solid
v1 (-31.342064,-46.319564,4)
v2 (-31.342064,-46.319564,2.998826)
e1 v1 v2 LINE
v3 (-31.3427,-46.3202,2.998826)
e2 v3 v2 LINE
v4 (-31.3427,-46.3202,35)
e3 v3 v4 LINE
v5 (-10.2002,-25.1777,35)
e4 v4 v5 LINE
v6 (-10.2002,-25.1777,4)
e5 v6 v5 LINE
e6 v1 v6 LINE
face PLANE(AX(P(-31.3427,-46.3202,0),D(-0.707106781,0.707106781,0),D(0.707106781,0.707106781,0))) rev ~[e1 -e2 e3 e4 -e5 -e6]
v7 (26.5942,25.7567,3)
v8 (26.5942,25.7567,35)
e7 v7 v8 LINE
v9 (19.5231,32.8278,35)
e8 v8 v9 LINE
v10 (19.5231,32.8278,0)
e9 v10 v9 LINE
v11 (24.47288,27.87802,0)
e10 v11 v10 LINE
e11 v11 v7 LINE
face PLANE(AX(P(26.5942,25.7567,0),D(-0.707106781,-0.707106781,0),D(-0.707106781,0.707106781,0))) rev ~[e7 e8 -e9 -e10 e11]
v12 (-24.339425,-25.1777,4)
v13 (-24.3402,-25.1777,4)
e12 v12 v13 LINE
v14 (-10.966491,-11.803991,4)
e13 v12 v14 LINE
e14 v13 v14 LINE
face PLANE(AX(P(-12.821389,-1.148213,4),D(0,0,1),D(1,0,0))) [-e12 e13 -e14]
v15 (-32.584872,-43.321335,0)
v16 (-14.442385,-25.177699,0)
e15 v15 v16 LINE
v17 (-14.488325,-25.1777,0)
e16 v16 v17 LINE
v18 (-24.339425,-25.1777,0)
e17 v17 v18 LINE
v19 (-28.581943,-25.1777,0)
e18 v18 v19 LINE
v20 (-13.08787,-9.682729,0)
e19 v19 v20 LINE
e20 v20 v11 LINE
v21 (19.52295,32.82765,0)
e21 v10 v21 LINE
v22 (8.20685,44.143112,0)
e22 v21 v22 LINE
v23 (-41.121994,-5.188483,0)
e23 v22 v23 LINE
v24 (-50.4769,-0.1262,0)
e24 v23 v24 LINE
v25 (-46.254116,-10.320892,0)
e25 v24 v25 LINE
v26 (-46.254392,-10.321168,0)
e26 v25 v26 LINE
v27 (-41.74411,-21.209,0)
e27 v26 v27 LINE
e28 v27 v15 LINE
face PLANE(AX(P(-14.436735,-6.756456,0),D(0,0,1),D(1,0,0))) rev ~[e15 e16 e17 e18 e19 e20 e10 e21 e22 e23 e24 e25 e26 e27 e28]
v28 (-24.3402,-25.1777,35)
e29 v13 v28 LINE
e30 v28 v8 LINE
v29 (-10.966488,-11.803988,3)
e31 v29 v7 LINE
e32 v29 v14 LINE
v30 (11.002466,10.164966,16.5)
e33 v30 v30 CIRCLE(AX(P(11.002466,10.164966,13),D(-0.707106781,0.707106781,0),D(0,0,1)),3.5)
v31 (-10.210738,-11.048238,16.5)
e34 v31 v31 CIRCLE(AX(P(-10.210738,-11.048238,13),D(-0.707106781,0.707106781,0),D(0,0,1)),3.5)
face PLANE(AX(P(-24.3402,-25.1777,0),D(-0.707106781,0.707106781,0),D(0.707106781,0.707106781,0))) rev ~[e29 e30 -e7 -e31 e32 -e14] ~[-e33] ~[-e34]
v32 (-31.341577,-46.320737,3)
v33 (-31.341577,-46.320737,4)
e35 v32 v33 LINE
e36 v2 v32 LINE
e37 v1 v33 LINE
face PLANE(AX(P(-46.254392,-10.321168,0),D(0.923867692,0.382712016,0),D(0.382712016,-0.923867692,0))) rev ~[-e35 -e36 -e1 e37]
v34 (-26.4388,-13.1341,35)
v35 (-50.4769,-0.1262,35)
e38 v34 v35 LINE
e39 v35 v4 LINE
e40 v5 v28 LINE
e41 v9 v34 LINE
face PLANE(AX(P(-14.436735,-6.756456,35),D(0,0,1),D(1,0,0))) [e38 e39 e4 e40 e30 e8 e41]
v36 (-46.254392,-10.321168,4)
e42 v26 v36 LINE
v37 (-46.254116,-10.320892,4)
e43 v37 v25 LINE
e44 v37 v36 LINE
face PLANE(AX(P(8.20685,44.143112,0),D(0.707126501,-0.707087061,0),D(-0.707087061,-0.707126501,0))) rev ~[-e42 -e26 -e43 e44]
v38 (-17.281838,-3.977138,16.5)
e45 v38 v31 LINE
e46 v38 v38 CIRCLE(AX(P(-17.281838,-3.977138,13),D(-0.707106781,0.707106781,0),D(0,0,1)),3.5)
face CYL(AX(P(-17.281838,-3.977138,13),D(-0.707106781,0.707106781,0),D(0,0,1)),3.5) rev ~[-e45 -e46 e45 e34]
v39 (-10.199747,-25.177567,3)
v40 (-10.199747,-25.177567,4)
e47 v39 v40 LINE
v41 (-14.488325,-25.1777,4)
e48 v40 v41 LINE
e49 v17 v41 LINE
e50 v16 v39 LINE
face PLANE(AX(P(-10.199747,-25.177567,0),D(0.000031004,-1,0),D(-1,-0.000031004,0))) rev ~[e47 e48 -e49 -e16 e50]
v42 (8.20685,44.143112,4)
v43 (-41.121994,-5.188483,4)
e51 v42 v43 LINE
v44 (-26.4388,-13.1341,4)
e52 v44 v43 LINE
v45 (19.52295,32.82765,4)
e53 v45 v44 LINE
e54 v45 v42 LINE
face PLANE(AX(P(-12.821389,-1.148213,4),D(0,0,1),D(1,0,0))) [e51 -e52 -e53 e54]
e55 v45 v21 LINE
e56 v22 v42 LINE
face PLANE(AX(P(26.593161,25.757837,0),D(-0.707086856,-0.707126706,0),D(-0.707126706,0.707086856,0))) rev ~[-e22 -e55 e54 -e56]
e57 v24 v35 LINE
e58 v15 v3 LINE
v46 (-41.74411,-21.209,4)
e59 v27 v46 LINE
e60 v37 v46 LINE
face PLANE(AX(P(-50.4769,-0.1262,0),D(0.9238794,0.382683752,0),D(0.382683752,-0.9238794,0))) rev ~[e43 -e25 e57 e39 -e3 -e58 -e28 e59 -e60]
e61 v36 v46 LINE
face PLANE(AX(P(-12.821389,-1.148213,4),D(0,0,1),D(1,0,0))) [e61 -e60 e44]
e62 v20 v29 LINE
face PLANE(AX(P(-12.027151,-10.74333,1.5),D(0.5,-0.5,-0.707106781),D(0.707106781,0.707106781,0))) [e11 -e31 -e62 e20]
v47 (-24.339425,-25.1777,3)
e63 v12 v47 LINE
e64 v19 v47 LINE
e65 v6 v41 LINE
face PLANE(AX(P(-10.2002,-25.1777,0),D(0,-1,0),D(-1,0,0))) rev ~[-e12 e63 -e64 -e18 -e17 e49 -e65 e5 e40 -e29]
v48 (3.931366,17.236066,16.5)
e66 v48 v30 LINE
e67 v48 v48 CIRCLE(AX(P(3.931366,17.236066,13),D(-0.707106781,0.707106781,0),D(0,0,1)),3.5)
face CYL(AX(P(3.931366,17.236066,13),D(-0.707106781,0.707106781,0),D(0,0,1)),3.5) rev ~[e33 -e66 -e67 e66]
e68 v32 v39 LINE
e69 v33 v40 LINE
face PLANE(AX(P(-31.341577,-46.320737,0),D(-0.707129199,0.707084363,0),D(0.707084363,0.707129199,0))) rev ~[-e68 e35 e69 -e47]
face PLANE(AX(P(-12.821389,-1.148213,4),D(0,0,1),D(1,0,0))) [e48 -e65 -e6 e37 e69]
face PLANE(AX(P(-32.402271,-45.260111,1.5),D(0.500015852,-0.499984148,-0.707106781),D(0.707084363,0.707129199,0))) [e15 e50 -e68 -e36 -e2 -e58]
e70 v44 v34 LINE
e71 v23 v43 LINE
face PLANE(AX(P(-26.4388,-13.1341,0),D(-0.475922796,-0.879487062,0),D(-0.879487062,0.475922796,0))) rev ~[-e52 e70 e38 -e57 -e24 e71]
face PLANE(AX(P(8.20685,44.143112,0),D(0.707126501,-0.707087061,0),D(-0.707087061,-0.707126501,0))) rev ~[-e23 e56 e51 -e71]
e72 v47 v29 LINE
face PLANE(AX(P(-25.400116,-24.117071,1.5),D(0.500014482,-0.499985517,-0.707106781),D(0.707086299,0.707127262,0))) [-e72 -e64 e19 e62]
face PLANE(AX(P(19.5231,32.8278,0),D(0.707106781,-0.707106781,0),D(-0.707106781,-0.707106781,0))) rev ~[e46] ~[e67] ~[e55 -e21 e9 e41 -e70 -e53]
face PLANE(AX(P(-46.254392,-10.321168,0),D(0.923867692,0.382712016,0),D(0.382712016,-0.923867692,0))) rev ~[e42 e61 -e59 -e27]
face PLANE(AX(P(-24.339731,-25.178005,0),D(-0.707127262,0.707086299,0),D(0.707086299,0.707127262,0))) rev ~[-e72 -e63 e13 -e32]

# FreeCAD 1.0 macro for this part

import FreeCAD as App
import Part
import Sketcher

V = App.Vector
Q = App.Units.Quantity


def edges_at(feature, points):
    """Names of the edges that pass closest to the given points."""
    edges = feature.Shape.Edges
    near = lambda p: min(range(len(edges)), key=lambda i: edges[i].distToShape(Part.Vertex(*p))[0])
    return sorted({f"Edge{near(p) + 1}" for p in points})


def add_polygon(sketch, points):
    """Adds a closed chain of lines whose ends are joined by coincident constraints."""
    first, n = sketch.GeometryCount, len(points)
    for a, b in zip(points, points[1:] + points[:1]):
        sketch.addGeometry(Part.LineSegment(App.Vector(*a, 0), App.Vector(*b, 0)), False)
    for i in range(n):
        sketch.addConstraint(Sketcher.Constraint("Coincident", first + i, 2, first + (i + 1) % n, 1))

doc = App.newDocument("Part")
params = doc.addObject("Spreadsheet::Sheet", "Params")
for row, (alias, value) in enumerate([
    ("sketch1_length", "50 mm"),
    ("sketch1_length2", "10 mm"),
    ("sketch1_length3", "65 mm"),
    ("sketch1_length4", "29.9 mm"),
    ("sketch1_width", "14.14 mm"),
    ("pad1_length", "35 mm"),
    ("sketch2_length", "29.9 mm"),
    ("sketch2_length2", "14.14 mm"),
    ("pad2_length", "4 mm"),
    ("sketch3_diameter", "7 mm"),
    ("chamfer_size", "3 mm"),
], start=1):
    params.set(f"A{row}", alias)
    params.set(f"B{row}", "=" + value)
    params.setAlias(f"B{row}", alias)

body = doc.addObject("PartDesign::Body", "Body")

sketch1 = body.newObject("Sketcher::SketchObject", "Sketch")
sketch1.AttachmentSupport = (doc.getObject("XY_Plane"), [""])
sketch1.MapMode = "FlatFace"
add_polygon(sketch1, [(-26, -13), (-50, 0), (-31, -46), (-10, -25), (-24, -25), (27, 26), (20, 33)])
sketch1.addConstraint([
    Sketcher.Constraint("Horizontal", 3),
    Sketcher.Constraint("Parallel", 2, 4),
    Sketcher.Constraint("Perpendicular", 4, 5),
    Sketcher.Constraint("Perpendicular", 5, 6),
    Sketcher.Constraint("Angle", 2, Q("45 deg")),
    Sketcher.Constraint("Distance", 1, Q("50 mm")),
    Sketcher.Constraint("Distance", 5, Q("10 mm")),
    Sketcher.Constraint("Distance", 6, Q("65 mm")),
    Sketcher.Constraint("DistanceX", 0, 2, -1, 1, Q("50.477 mm")),
    Sketcher.Constraint("DistanceX", -1, 1, 5, 2, Q("19.523 mm")),
    Sketcher.Constraint("Angle", 1, Q("-67.5 deg")),
    Sketcher.Constraint("Distance", 2, Q("29.9 mm")),
    Sketcher.Constraint("DistanceX", 3, 2, 3, 1, Q("14.14 mm")),
    Sketcher.Constraint("DistanceY", 6, 2, -1, 1, Q("13.134 mm")),
])
sketch1.setExpression("Constraints[12]", "Params.sketch1_length")
sketch1.setExpression("Constraints[13]", "Params.sketch1_length2")
sketch1.setExpression("Constraints[14]", "Params.sketch1_length3")
sketch1.setExpression("Constraints[18]", "Params.sketch1_length4")
sketch1.setExpression("Constraints[19]", "Params.sketch1_width")
pad1 = body.newObject("PartDesign::Pad", "Pad")
pad1.Profile = sketch1
pad1.setExpression("Length", "Params.pad1_length")

sketch2 = body.newObject("Sketcher::SketchObject", "Sketch001")
sketch2.AttachmentSupport = (doc.getObject("XY_Plane"), [""])
sketch2.MapMode = "FlatFace"
add_polygon(sketch2, [(-10, -25), (-31, -46), (-46, -10), (8, 44), (27, 26), (-24, -25)])
sketch2.addConstraint([
    Sketcher.Constraint("Parallel", 0, 2),
    Sketcher.Constraint("Perpendicular", 2, 3),
    Sketcher.Constraint("Perpendicular", 3, 4),
    Sketcher.Constraint("Distance", 0, Q("29.9 mm")),
    Sketcher.Constraint("Distance", 5, Q("14.14 mm")),
    Sketcher.Constraint("Distance", 2, Q("77.022 mm")),
    Sketcher.Constraint("Distance", 4, Q("72.032 mm")),
    Sketcher.Constraint("DistanceY", -1, 1, 2, 2, Q("44.143 mm")),
    Sketcher.Constraint("DistanceY", 4, 2, -1, 1, Q("25.178 mm")),
    Sketcher.Constraint("DistanceY", 1, 2, 3, 2, Q("36.079 mm")),
    Sketcher.Constraint("Distance", 1, Q("38.9662 mm")),
    Sketcher.Constraint("DistanceX", 0, 2, -1, 1, Q("31.3416 mm")),
])
sketch2.setExpression("Constraints[9]", "Params.sketch2_length")
sketch2.setExpression("Constraints[10]", "Params.sketch2_length2")
pad2 = body.newObject("PartDesign::Pad", "Pad001")
pad2.Profile = sketch2
pad2.setExpression("Length", "Params.pad2_length")

sketch3 = body.newObject("Sketcher::SketchObject", "Sketch002")
sketch3.Placement = App.Placement(V(-3.4579, 9.8468, 19.5), App.Rotation(V(0, 0, 1), V(0.707106781, 0.707106781, 0), V(-0.707106781, 0.707106781, 0), "ZXY"))
sketch3.addGeometry([
    Part.Circle(V(-6.5, 10.4, 0), V(0, 0, 1), 3.5),
    Part.Circle(V(-6.5, -19.5, 0), V(0, 0, 1), 3.5),
], False)
sketch3.addConstraint([
    Sketcher.Constraint("Equal", 0, 1),
    Sketcher.Constraint("Vertical", 0, 3, 1, 3),
    Sketcher.Constraint("Diameter", 0, Q("7 mm")),
    Sketcher.Constraint("DistanceX", 0, 3, -1, 1, Q("6.5 mm")),
    Sketcher.Constraint("DistanceY", 1, 3, 0, 3, Q("30 mm")),
    Sketcher.Constraint("DistanceY", -1, 1, 0, 3, Q("10.45 mm")),
])
sketch3.setExpression("Constraints[2]", "Params.sketch3_diameter")
pocket1 = body.newObject("PartDesign::Pocket", "Pocket")
pocket1.Profile = sketch3
pocket1.Type = "ThroughAll"
doc.recompute()

chamfer = body.newObject("PartDesign::Chamfer", "Chamfer")
chamfer.Base = (pocket1, edges_at(pocket1, [(-20.771, -35.749, 0), (1.127, 0.289, 0)]))
chamfer.setExpression("Size", "Params.chamfer_size")

doc.recompute()
